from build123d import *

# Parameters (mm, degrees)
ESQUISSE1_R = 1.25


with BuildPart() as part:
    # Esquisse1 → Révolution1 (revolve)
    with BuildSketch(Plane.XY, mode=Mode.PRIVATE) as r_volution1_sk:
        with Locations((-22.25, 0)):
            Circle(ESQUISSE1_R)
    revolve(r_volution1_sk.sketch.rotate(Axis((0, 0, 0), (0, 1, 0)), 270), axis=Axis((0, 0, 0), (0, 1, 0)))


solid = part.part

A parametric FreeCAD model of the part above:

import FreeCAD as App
import Part
import Sketcher
from FreeCAD import Vector
Q = App.Units.Quantity

doc = App.newDocument("Part")
body = doc.addObject("PartDesign::Body", "Body")

# Sketch on XY plane
sketch1 = doc.addObject("Sketcher::SketchObject", "Sketch")
body.addObject(sketch1)
sketch1.AttachmentSupport = (doc.XY_Plane, [""])
sketch1.MapMode = "FlatFace"
sketch1.addGeometry(Part.Circle(Vector(-22.2, 0, 0), Vector(0, 0, 1), 1.2), False)
sketch1.addConstraint([
    Sketcher.Constraint("PointOnObject", 0, 3, -1),
    Sketcher.Constraint("Diameter", 0, Q("2.5 mm")),
    Sketcher.Constraint("DistanceX", 0, 3, -1, 1, Q("22.25 mm")),
])
revolution = doc.addObject("PartDesign::Revolution", "Revolution")
body.addObject(revolution)
revolution.Profile = sketch1
revolution.ReferenceAxis = (sketch1, ["V_Axis"])
revolution.Angle = 360

doc.recompute()
